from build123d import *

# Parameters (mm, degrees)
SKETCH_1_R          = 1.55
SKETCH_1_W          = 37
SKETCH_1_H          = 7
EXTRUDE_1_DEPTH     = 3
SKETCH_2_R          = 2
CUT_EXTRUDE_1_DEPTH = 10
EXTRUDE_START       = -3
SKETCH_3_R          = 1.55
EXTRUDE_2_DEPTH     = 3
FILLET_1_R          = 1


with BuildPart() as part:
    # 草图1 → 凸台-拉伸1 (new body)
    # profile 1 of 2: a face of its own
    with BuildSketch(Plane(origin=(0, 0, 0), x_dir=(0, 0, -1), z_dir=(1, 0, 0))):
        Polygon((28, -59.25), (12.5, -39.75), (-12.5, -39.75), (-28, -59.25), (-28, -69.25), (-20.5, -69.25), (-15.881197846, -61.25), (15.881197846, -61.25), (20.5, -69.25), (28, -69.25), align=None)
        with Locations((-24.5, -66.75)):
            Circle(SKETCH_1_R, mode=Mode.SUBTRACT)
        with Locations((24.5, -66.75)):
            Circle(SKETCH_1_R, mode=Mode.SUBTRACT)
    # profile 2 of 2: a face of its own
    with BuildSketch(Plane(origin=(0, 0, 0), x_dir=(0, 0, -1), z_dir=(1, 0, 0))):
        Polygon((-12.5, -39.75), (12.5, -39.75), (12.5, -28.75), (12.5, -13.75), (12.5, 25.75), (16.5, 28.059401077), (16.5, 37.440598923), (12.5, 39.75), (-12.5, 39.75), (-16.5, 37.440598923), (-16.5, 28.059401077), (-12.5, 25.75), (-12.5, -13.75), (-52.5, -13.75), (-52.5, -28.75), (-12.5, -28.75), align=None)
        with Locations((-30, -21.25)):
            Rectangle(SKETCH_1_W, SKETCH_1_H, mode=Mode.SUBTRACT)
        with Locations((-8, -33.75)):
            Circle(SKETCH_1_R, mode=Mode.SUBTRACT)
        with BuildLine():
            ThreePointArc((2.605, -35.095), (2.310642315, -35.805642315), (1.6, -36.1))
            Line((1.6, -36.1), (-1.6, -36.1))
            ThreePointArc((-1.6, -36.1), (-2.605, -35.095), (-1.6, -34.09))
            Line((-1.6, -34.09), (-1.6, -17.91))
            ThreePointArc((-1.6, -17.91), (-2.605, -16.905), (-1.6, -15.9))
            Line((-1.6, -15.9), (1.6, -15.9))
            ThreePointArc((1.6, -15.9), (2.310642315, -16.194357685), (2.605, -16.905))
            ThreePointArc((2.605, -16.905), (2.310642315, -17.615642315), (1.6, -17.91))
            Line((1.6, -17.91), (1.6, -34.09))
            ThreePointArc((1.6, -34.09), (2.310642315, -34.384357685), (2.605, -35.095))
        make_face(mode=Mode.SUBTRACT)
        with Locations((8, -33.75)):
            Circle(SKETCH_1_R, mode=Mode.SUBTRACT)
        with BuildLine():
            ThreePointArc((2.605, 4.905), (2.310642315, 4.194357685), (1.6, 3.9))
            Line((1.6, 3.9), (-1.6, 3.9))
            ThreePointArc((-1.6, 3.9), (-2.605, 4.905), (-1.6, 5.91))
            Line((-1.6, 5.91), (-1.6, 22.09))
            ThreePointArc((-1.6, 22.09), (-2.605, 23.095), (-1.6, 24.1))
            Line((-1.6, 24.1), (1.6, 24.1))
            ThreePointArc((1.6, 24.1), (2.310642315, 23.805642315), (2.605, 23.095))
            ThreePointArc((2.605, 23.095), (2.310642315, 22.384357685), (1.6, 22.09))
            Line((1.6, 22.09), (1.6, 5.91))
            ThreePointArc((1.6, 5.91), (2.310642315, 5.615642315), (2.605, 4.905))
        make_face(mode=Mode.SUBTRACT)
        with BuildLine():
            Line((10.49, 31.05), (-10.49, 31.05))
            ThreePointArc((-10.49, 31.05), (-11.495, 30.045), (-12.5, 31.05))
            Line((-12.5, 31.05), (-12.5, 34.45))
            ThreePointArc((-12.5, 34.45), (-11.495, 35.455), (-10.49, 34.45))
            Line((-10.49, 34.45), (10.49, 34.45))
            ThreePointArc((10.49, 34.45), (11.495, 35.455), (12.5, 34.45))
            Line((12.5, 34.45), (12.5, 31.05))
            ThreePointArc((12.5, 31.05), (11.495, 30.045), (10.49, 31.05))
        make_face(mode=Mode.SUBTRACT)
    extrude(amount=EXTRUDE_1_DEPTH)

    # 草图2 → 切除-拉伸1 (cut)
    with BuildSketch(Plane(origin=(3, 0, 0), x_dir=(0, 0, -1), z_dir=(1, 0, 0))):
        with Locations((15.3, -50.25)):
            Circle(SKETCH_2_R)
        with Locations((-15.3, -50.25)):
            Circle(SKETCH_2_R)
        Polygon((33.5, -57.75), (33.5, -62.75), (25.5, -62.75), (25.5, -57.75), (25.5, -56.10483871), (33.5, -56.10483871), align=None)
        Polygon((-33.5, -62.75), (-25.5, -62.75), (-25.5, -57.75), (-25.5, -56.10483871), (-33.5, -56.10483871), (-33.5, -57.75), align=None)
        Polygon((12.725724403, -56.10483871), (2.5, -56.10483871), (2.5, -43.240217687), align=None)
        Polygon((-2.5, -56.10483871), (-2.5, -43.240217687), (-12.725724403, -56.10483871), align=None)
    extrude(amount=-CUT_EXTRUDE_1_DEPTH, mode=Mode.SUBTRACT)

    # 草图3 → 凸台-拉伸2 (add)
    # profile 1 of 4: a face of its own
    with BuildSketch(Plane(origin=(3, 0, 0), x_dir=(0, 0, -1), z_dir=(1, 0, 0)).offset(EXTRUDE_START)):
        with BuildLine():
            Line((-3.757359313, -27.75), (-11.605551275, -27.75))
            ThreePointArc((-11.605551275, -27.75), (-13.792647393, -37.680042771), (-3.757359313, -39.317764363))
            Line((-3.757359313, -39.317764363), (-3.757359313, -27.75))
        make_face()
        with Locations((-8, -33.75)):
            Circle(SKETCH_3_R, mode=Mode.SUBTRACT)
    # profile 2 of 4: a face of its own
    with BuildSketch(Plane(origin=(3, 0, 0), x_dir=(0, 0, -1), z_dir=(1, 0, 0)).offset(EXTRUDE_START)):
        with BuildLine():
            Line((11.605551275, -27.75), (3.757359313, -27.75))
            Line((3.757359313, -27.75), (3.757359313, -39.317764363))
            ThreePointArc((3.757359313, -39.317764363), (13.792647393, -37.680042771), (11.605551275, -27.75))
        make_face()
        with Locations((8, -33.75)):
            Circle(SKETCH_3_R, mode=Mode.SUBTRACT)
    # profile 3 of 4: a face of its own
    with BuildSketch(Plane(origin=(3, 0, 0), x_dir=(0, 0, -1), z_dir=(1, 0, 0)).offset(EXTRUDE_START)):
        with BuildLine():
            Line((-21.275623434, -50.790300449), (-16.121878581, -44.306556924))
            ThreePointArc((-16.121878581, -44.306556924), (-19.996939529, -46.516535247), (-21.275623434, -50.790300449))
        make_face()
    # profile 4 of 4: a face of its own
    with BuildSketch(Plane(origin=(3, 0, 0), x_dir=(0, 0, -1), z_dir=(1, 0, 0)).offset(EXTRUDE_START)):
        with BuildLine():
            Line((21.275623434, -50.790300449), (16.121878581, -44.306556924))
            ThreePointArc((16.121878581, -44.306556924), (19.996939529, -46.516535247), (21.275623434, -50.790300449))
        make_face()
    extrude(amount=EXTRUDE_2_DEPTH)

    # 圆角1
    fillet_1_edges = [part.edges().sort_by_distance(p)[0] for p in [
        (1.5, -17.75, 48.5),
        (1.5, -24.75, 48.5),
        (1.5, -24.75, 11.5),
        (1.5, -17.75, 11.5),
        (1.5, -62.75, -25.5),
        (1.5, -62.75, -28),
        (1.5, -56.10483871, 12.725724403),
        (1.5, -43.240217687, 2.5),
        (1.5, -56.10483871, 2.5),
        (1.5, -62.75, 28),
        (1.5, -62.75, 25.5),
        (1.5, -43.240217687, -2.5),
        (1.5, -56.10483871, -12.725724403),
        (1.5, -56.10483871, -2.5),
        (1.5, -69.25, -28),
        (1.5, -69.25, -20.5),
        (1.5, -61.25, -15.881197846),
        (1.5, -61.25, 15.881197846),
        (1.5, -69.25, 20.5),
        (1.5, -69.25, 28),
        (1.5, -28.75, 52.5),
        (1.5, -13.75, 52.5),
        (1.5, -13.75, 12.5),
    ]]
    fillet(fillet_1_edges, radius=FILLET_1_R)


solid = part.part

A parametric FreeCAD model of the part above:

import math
import FreeCAD as App
import Part
import Sketcher

V = App.Vector
Q = App.Units.Quantity


def edges_at(feature, points):
    """Names of the edges that pass closest to the given points."""
    edges = feature.Shape.Edges
    near = lambda p: min(range(len(edges)), key=lambda i: edges[i].distToShape(Part.Vertex(*p))[0])
    return sorted({f"Edge{near(p) + 1}" for p in points})


def add_polygon(sketch, points):
    """Adds a closed chain of lines whose ends are joined by coincident constraints."""
    first, n = sketch.GeometryCount, len(points)
    for a, b in zip(points, points[1:] + points[:1]):
        sketch.addGeometry(Part.LineSegment(App.Vector(*a, 0), App.Vector(*b, 0)), False)
    for i in range(n):
        sketch.addConstraint(Sketcher.Constraint("Coincident", first + i, 2, first + (i + 1) % n, 1))

doc = App.newDocument("Part")
body = doc.addObject("PartDesign::Body", "Body")

# Sketch on YZ plane
sketch1 = doc.addObject("Sketcher::SketchObject", "Sketch")
body.addObject(sketch1)
sketch1.AttachmentSupport = (doc.YZ_Plane, [""])
sketch1.MapMode = "FlatFace"
add_polygon(sketch1, [(-59.2, -28), (-39.8, -12.5), (25.8, -12.5), (28.1, -16.5), (37.4, -16.5), (39.8, -12.5), (39.8, 12.5), (37.4, 16.5), (28.1, 16.5), (25.8, 12.5), (-13.8, 12.5), (-13.8, 52.5), (-28.8, 52.5), (-28.8, 12.5), (-39.8, 12.5), (-59.2, 28), (-69.2, 28), (-69.2, 20.5), (-61.2, 15.9), (-61.2, -15.9), (-69.2, -20.5), (-69.2, -28)])  # lines 0-21
sketch1.addGeometry(Part.Circle(V(-66.8, 24.5, 0), V(0, 0, 1), 1.6), False)  # 22
sketch1.addGeometry(Part.Circle(V(-66.8, -24.5, 0), V(0, 0, 1), 1.6), False)  # 23
sketch1.addGeometry(Part.LineSegment(V(31.1, -10.5, 0), V(31.1, 10.5, 0)), False)  # 24
sketch1.addGeometry(Part.ArcOfCircle(Part.Circle(V(31.1, 11.5, 0), V(0, 0, 1), 1), math.radians(90), math.radians(270)), False)  # 25
sketch1.addGeometry(Part.LineSegment(V(31.1, 12.5, 0), V(34.5, 12.5, 0)), False)  # 26
sketch1.addGeometry(Part.ArcOfCircle(Part.Circle(V(34.5, 11.5, 0), V(0, 0, 1), 1), math.radians(-90), math.radians(90)), False)  # 27
sketch1.addGeometry(Part.LineSegment(V(34.5, 10.5, 0), V(34.5, -10.5, 0)), False)  # 28
sketch1.addGeometry(Part.ArcOfCircle(Part.Circle(V(34.5, -11.5, 0), V(0, 0, 1), 1), math.radians(-90), math.radians(90)), False)  # 29
sketch1.addGeometry(Part.LineSegment(V(34.5, -12.5, 0), V(31.1, -12.5, 0)), False)  # 30
sketch1.addGeometry(Part.ArcOfCircle(Part.Circle(V(31.1, -11.5, 0), V(0, 0, 1), 1), math.radians(90), math.radians(270)), False)  # 31
add_polygon(sketch1, [(-24.8, 11.5), (-24.8, 48.5), (-17.8, 48.5), (-17.8, 11.5)])  # lines 32-35
sketch1.addGeometry(Part.Circle(V(-33.8, 8, 0), V(0, 0, 1), 1.6), False)  # 36
sketch1.addGeometry(Part.Circle(V(-33.8, -8, 0), V(0, 0, 1), 1.6), False)  # 37
sketch1.addGeometry(Part.ArcOfCircle(Part.Circle(V(-35.1, -1.6, 0), V(0, 0, 1), 1), math.radians(-90), math.radians(0)), False)  # 38
sketch1.addGeometry(Part.ArcOfCircle(Part.Circle(V(-35.1, -1.6, 0), V(0, 0, 1), 1), math.radians(180), math.radians(270)), False)  # 39
sketch1.addGeometry(Part.LineSegment(V(-36.1, -1.6, 0), V(-36.1, 1.6, 0)), False)  # 40
sketch1.addGeometry(Part.ArcOfCircle(Part.Circle(V(-35.1, 1.6, 0), V(0, 0, 1), 1), math.radians(0), math.radians(180)), False)  # 41
sketch1.addGeometry(Part.LineSegment(V(-34.1, 1.6, 0), V(-17.9, 1.6, 0)), False)  # 42
sketch1.addGeometry(Part.ArcOfCircle(Part.Circle(V(-16.9, 1.6, 0), V(0, 0, 1), 1), math.radians(0), math.radians(180)), False)  # 43
sketch1.addGeometry(Part.LineSegment(V(-15.9, 1.6, 0), V(-15.9, -1.6, 0)), False)  # 44
sketch1.addGeometry(Part.ArcOfCircle(Part.Circle(V(-16.9, -1.6, 0), V(0, 0, 1), 1), math.radians(-90), math.radians(0)), False)  # 45
sketch1.addGeometry(Part.ArcOfCircle(Part.Circle(V(-16.9, -1.6, 0), V(0, 0, 1), 1), math.radians(180), math.radians(270)), False)  # 46
sketch1.addGeometry(Part.LineSegment(V(-17.9, -1.6, 0), V(-34.1, -1.6, 0)), False)  # 47
sketch1.addGeometry(Part.ArcOfCircle(Part.Circle(V(4.9, -1.6, 0), V(0, 0, 1), 1), math.radians(-90), math.radians(0)), False)  # 48
sketch1.addGeometry(Part.ArcOfCircle(Part.Circle(V(4.9, -1.6, 0), V(0, 0, 1), 1), math.radians(180), math.radians(270)), False)  # 49
sketch1.addGeometry(Part.LineSegment(V(3.9, -1.6, 0), V(3.9, 1.6, 0)), False)  # 50
sketch1.addGeometry(Part.ArcOfCircle(Part.Circle(V(4.9, 1.6, 0), V(0, 0, 1), 1), math.radians(0), math.radians(180)), False)  # 51
sketch1.addGeometry(Part.LineSegment(V(5.9, 1.6, 0), V(22.1, 1.6, 0)), False)  # 52
sketch1.addGeometry(Part.ArcOfCircle(Part.Circle(V(23.1, 1.6, 0), V(0, 0, 1), 1), math.radians(0), math.radians(180)), False)  # 53
sketch1.addGeometry(Part.LineSegment(V(24.1, 1.6, 0), V(24.1, -1.6, 0)), False)  # 54
sketch1.addGeometry(Part.ArcOfCircle(Part.Circle(V(23.1, -1.6, 0), V(0, 0, 1), 1), math.radians(-90), math.radians(0)), False)  # 55
sketch1.addGeometry(Part.ArcOfCircle(Part.Circle(V(23.1, -1.6, 0), V(0, 0, 1), 1), math.radians(180), math.radians(270)), False)  # 56
sketch1.addGeometry(Part.LineSegment(V(22.1, -1.6, 0), V(5.9, -1.6, 0)), False)  # 57
sketch1.addConstraint(Sketcher.Constraint("Coincident", 24, 2, 25, 2))
sketch1.addConstraint(Sketcher.Constraint("Tangent", 25, 1, 26, 1))
sketch1.addConstraint(Sketcher.Constraint("Tangent", 26, 2, 27, 2))
sketch1.addConstraint(Sketcher.Constraint("Coincident", 27, 1, 28, 1))
sketch1.addConstraint(Sketcher.Constraint("Coincident", 28, 2, 29, 2))
sketch1.addConstraint(Sketcher.Constraint("Tangent", 29, 1, 30, 1))
sketch1.addConstraint(Sketcher.Constraint("Tangent", 30, 2, 31, 2))
sketch1.addConstraint(Sketcher.Constraint("Coincident", 31, 1, 24, 1))
sketch1.addConstraint(Sketcher.Constraint("Tangent", 38, 1, 39, 2))
sketch1.addConstraint(Sketcher.Constraint("Tangent", 39, 1, 40, 1))
sketch1.addConstraint(Sketcher.Constraint("Tangent", 40, 2, 41, 2))
sketch1.addConstraint(Sketcher.Constraint("Coincident", 41, 1, 42, 1))
sketch1.addConstraint(Sketcher.Constraint("Coincident", 42, 2, 43, 2))
sketch1.addConstraint(Sketcher.Constraint("Tangent", 43, 1, 44, 1))
sketch1.addConstraint(Sketcher.Constraint("Tangent", 44, 2, 45, 2))
sketch1.addConstraint(Sketcher.Constraint("Tangent", 45, 1, 46, 2))
sketch1.addConstraint(Sketcher.Constraint("Coincident", 46, 1, 47, 1))
sketch1.addConstraint(Sketcher.Constraint("Coincident", 47, 2, 38, 2))
sketch1.addConstraint(Sketcher.Constraint("Tangent", 48, 1, 49, 2))
sketch1.addConstraint(Sketcher.Constraint("Tangent", 49, 1, 50, 1))
sketch1.addConstraint(Sketcher.Constraint("Tangent", 50, 2, 51, 2))
sketch1.addConstraint(Sketcher.Constraint("Coincident", 51, 1, 52, 1))
sketch1.addConstraint(Sketcher.Constraint("Coincident", 52, 2, 53, 2))
sketch1.addConstraint(Sketcher.Constraint("Tangent", 53, 1, 54, 1))
sketch1.addConstraint(Sketcher.Constraint("Tangent", 54, 2, 55, 2))
sketch1.addConstraint(Sketcher.Constraint("Tangent", 55, 1, 56, 2))
sketch1.addConstraint(Sketcher.Constraint("Coincident", 56, 1, 57, 1))
sketch1.addConstraint(Sketcher.Constraint("Coincident", 57, 2, 48, 2))
sketch1.addConstraint(Sketcher.Constraint("Horizontal", 1))
sketch1.addConstraint(Sketcher.Constraint("Horizontal", 3))
sketch1.addConstraint(Sketcher.Constraint("Vertical", 5))
sketch1.addConstraint(Sketcher.Constraint("Horizontal", 7))
sketch1.addConstraint(Sketcher.Constraint("Horizontal", 9))
sketch1.addConstraint(Sketcher.Constraint("Vertical", 10))
sketch1.addConstraint(Sketcher.Constraint("Horizontal", 11))
sketch1.addConstraint(Sketcher.Constraint("Vertical", 12))
sketch1.addConstraint(Sketcher.Constraint("Horizontal", 13))
sketch1.addConstraint(Sketcher.Constraint("Horizontal", 15))
sketch1.addConstraint(Sketcher.Constraint("Vertical", 16))
sketch1.addConstraint(Sketcher.Constraint("Vertical", 18))
sketch1.addConstraint(Sketcher.Constraint("Vertical", 20))
sketch1.addConstraint(Sketcher.Constraint("Horizontal", 21))
sketch1.addConstraint(Sketcher.Constraint("Vertical", 24))
sketch1.addConstraint(Sketcher.Constraint("Horizontal", 26))
sketch1.addConstraint(Sketcher.Constraint("Vertical", 28))
sketch1.addConstraint(Sketcher.Constraint("Horizontal", 30))
sketch1.addConstraint(Sketcher.Constraint("Vertical", 32))
sketch1.addConstraint(Sketcher.Constraint("Horizontal", 33))
sketch1.addConstraint(Sketcher.Constraint("Vertical", 34))
sketch1.addConstraint(Sketcher.Constraint("Horizontal", 35))
sketch1.addConstraint(Sketcher.Constraint("Vertical", 40))
sketch1.addConstraint(Sketcher.Constraint("Horizontal", 42))
sketch1.addConstraint(Sketcher.Constraint("Vertical", 44))
sketch1.addConstraint(Sketcher.Constraint("Horizontal", 47))
sketch1.addConstraint(Sketcher.Constraint("Vertical", 50))
sketch1.addConstraint(Sketcher.Constraint("Horizontal", 52))
sketch1.addConstraint(Sketcher.Constraint("Vertical", 54))
sketch1.addConstraint(Sketcher.Constraint("Horizontal", 57))
sketch1.addConstraint(Sketcher.Constraint("Equal", 22, 23))
sketch1.addConstraint(Sketcher.Constraint("Equal", 25, 27))
sketch1.addConstraint(Sketcher.Constraint("Equal", 27, 29))
sketch1.addConstraint(Sketcher.Constraint("Equal", 29, 31))
sketch1.addConstraint(Sketcher.Constraint("Equal", 23, 36))
sketch1.addConstraint(Sketcher.Constraint("Equal", 36, 37))
sketch1.addConstraint(Sketcher.Constraint("Equal", 31, 38))
sketch1.addConstraint(Sketcher.Constraint("Equal", 38, 39))
sketch1.addConstraint(Sketcher.Constraint("Equal", 39, 41))
sketch1.addConstraint(Sketcher.Constraint("Equal", 41, 43))
sketch1.addConstraint(Sketcher.Constraint("Equal", 43, 45))
sketch1.addConstraint(Sketcher.Constraint("Equal", 45, 46))
sketch1.addConstraint(Sketcher.Constraint("Equal", 46, 48))
sketch1.addConstraint(Sketcher.Constraint("Equal", 48, 49))
sketch1.addConstraint(Sketcher.Constraint("Equal", 49, 51))
sketch1.addConstraint(Sketcher.Constraint("Equal", 51, 53))
sketch1.addConstraint(Sketcher.Constraint("Equal", 53, 55))
sketch1.addConstraint(Sketcher.Constraint("Equal", 55, 56))
sketch1.addConstraint(Sketcher.Constraint("Symmetric", 0, 2, 5, 2, -1, 1))
sketch1.addConstraint(Sketcher.Constraint("Symmetric", 4, 2, 13, 2, -1, 1))
sketch1.addConstraint(Sketcher.Constraint("Symmetric", 22, 3, 23, 3, -1))
sketch1.addConstraint(Sketcher.Constraint("Symmetric", 27, 3, 29, 3, -1))
sketch1.addConstraint(Sketcher.Constraint("Symmetric", 36, 3, 37, 3, -1))
sketch1.addConstraint(Sketcher.Constraint("Symmetric", 3, 2, 6, 2, -1))
sketch1.addConstraint(Sketcher.Constraint("Symmetric", 1, 2, 8, 2, -1))
sketch1.addConstraint(Sketcher.Constraint("Symmetric", 16, 2, 19, 2, -1))
sketch1.addConstraint(Sketcher.Constraint("Symmetric", 14, 2, 21, 2, -1))
sketch1.addConstraint(Sketcher.Constraint("Parallel", 2, 6))
sketch1.addConstraint(Sketcher.Constraint("Parallel", 4, 8))
sketch1.addConstraint(Sketcher.Constraint("Perpendicular", 8, 17))
sketch1.addConstraint(Sketcher.Constraint("Perpendicular", 6, 19))
sketch1.addConstraint(Sketcher.Constraint("Horizontal", 41, 3, 43, 3))
sketch1.addConstraint(Sketcher.Constraint("Horizontal", 39, 3, 45, 3))
sketch1.addConstraint(Sketcher.Constraint("Horizontal", 46, 3, 48, 3))
sketch1.addConstraint(Sketcher.Constraint("Horizontal", 43, 3, 51, 3))
sketch1.addConstraint(Sketcher.Constraint("Horizontal", 51, 3, 53, 3))
sketch1.addConstraint(Sketcher.Constraint("Horizontal", 49, 3, 55, 3))
sketch1.addConstraint(Sketcher.Constraint("Horizontal", 1, 2, 4, 2))
sketch1.addConstraint(Sketcher.Constraint("Horizontal", 13, 2, 25, 1))
sketch1.addConstraint(Sketcher.Constraint("Horizontal", 40, 2, 41, 1))
sketch1.addConstraint(Sketcher.Constraint("Horizontal", 44, 2, 46, 1))
sketch1.addConstraint(Sketcher.Constraint("Horizontal", 50, 2, 51, 1))
sketch1.addConstraint(Sketcher.Constraint("Horizontal", 54, 2, 56, 1))
sketch1.addConstraint(Sketcher.Constraint("Vertical", 25, 3, 31, 3))
sketch1.addConstraint(Sketcher.Constraint("Vertical", 31, 3, 24, 2))
sketch1.addConstraint(Sketcher.Constraint("Vertical", 26, 2, 27, 1))
sketch1.addConstraint(Sketcher.Constraint("Vertical", 41, 3, 38, 1))
sketch1.addConstraint(Sketcher.Constraint("Vertical", 46, 3, 45, 1))
sketch1.addConstraint(Sketcher.Constraint("Vertical", 51, 3, 48, 1))
sketch1.addConstraint(Sketcher.Constraint("Vertical", 56, 3, 55, 1))
sketch1.addConstraint(Sketcher.Constraint("Equal", 47, 52))
sketch1.addConstraint(Sketcher.Constraint("Diameter", 22, Q("3.1 mm")))
sketch1.addConstraint(Sketcher.Constraint("DistanceX", 11, 2, 11, 1, Q("15 mm")))
sketch1.addConstraint(Sketcher.Constraint("DistanceX", 13, 2, 13, 1, Q("11 mm")))
sketch1.addConstraint(Sketcher.Constraint("DistanceX", 15, 2, 15, 1, Q("10 mm")))
sketch1.addConstraint(Sketcher.Constraint("DistanceX", 33, 1, 33, 2, Q("7 mm")))
sketch1.addConstraint(Sketcher.Constraint("DistanceY", 5, 1, 5, 2, Q("25 mm")))
sketch1.addConstraint(Sketcher.Constraint("DistanceY", 10, 1, 10, 2, Q("40 mm")))
sketch1.addConstraint(Sketcher.Constraint("DistanceY", 32, 1, 32, 2, Q("37 mm")))
sketch1.addConstraint(Sketcher.Constraint("Angle", 2, Q("-60 deg")))
sketch1.addConstraint(Sketcher.Constraint("DistanceX", 1, 1, 1, 2, Q("65.5 mm")))
sketch1.addConstraint(Sketcher.Constraint("DistanceX", 26, 1, 26, 2, Q("3.4 mm")))
sketch1.addConstraint(Sketcher.Constraint("DistanceY", 16, 2, 16, 1, Q("7.5 mm")))
sketch1.addConstraint(Sketcher.Constraint("DistanceY", 40, 1, 40, 2, Q("3.2 mm")))
sketch1.addConstraint(Sketcher.Constraint("DistanceY", -1, 1, 36, 3, Q("8 mm")))
sketch1.addConstraint(Sketcher.Constraint("DistanceY", -1, 1, 14, 2, Q("28 mm")))
sketch1.addConstraint(Sketcher.Constraint("Radius", 25, Q("1.005 mm")))
sketch1.addConstraint(Sketcher.Constraint("DistanceX", 42, 1, 42, 2, Q("16.18 mm")))
sketch1.addConstraint(Sketcher.Constraint("DistanceY", -1, 1, 22, 3, Q("24.5 mm")))
sketch1.addConstraint(Sketcher.Constraint("DistanceY", 38, 3, -1, 1, Q("1.6 mm")))
sketch1.addConstraint(Sketcher.Constraint("DistanceY", 2, 2, -1, 1, Q("16.5 mm")))
sketch1.addConstraint(Sketcher.Constraint("DistanceY", -1, 1, 32, 2, Q("48.5 mm")))
sketch1.addConstraint(Sketcher.Constraint("DistanceX", 39, 1, -1, 1, Q("36.1 mm")))
sketch1.addConstraint(Sketcher.Constraint("DistanceX", -1, 1, 49, 1, Q("3.9 mm")))
sketch1.addConstraint(Sketcher.Constraint("DistanceX", 22, 3, -1, 1, Q("66.75 mm")))
sketch1.addConstraint(Sketcher.Constraint("DistanceX", -1, 1, 25, 3, Q("31.05 mm")))
sketch1.addConstraint(Sketcher.Constraint("DistanceX", 36, 3, -1, 1, Q("33.75 mm")))
sketch1.addConstraint(Sketcher.Constraint("DistanceX", 0, 2, -1, 1, Q("39.75 mm")))
sketch1.addConstraint(Sketcher.Constraint("DistanceX", 14, 2, -1, 1, Q("59.25 mm")))
sketch1.addConstraint(Sketcher.Constraint("DistanceX", 17, 2, -1, 1, Q("61.25 mm")))
sketch1.addConstraint(Sketcher.Constraint("DistanceX", 32, 2, -1, 1, Q("24.75 mm")))
pad1 = doc.addObject("PartDesign::Pad", "Pad")
body.addObject(pad1)
pad1.Profile = sketch1
pad1.Length = 3

# Sketch on YZ plane
sketch2 = doc.addObject("Sketcher::SketchObject", "Sketch001")
body.addObject(sketch2)
sketch2.AttachmentSupport = (doc.YZ_Plane, [""])
sketch2.MapMode = "FlatFace"
sketch2.AttachmentOffset = App.Placement(V(0, 0, 3), App.Rotation())
sketch2.addGeometry(Part.Circle(V(-50.2, -15.3, 0), V(0, 0, 1), 2), False)  # 0
sketch2.addGeometry(Part.Circle(V(-50.2, 15.3, 0), V(0, 0, 1), 2), False)  # 1
add_polygon(sketch2, [(-62.8, -33.5), (-56.1, -33.5), (-56.1, -25.5), (-62.8, -25.5)])  # lines 2-5
add_polygon(sketch2, [(-62.8, 33.5), (-62.8, 25.5), (-56.1, 25.5), (-56.1, 33.5)])  # lines 6-9
add_polygon(sketch2, [(-56.1, -2.5), (-56.1, -12.7), (-43.2, -2.5)])  # lines 10-12
add_polygon(sketch2, [(-56.1, 2.5), (-43.2, 2.5), (-56.1, 12.7)])  # lines 13-15
sketch2.addConstraint(Sketcher.Constraint("Horizontal", 2))
sketch2.addConstraint(Sketcher.Constraint("Vertical", 3))
sketch2.addConstraint(Sketcher.Constraint("Horizontal", 4))
sketch2.addConstraint(Sketcher.Constraint("Vertical", 5))
sketch2.addConstraint(Sketcher.Constraint("Vertical", 6))
sketch2.addConstraint(Sketcher.Constraint("Horizontal", 7))
sketch2.addConstraint(Sketcher.Constraint("Vertical", 8))
sketch2.addConstraint(Sketcher.Constraint("Horizontal", 9))
sketch2.addConstraint(Sketcher.Constraint("Vertical", 10))
sketch2.addConstraint(Sketcher.Constraint("Horizontal", 12))
sketch2.addConstraint(Sketcher.Constraint("Horizontal", 13))
sketch2.addConstraint(Sketcher.Constraint("Vertical", 15))
sketch2.addConstraint(Sketcher.Constraint("Equal", 0, 1))
sketch2.addConstraint(Sketcher.Constraint("Symmetric", 0, 3, 1, 3, -1))
sketch2.addConstraint(Sketcher.Constraint("Symmetric", 4, 2, 6, 2, -1))
sketch2.addConstraint(Sketcher.Constraint("Symmetric", 2, 2, 8, 2, -1))
sketch2.addConstraint(Sketcher.Constraint("Symmetric", 11, 2, 13, 2, -1))
sketch2.addConstraint(Sketcher.Constraint("Symmetric", 10, 2, 14, 2, -1))
sketch2.addConstraint(Sketcher.Constraint("Vertical", 8, 2, 10, 2))
sketch2.addConstraint(Sketcher.Constraint("Diameter", 0, Q("4 mm")))
sketch2.addConstraint(Sketcher.Constraint("DistanceY", 3, 1, 3, 2, Q("8 mm")))
sketch2.addConstraint(Sketcher.Constraint("DistanceY", 4, 2, 6, 2, Q("51 mm")))
sketch2.addConstraint(Sketcher.Constraint("DistanceY", 3, 2, 11, 2, Q("23 mm")))
sketch2.addConstraint(Sketcher.Constraint("DistanceY", 0, 3, -1, 1, Q("15.3 mm")))
sketch2.addConstraint(Sketcher.Constraint("DistanceX", 4, 2, 0, 3, Q("12.5 mm")))
sketch2.addConstraint(Sketcher.Constraint("DistanceX", 0, 3, -1, 1, Q("50.25 mm")))
sketch2.addConstraint(Sketcher.Constraint("DistanceX", 2, 1, 2, 2, Q("6.645161 mm")))
sketch2.addConstraint(Sketcher.Constraint("DistanceX", 12, 2, 12, 1, Q("12.864621 mm")))
sketch2.addConstraint(Sketcher.Constraint("Distance", 11, Q("16.433621 mm")))
pocket1 = doc.addObject("PartDesign::Pocket", "Pocket")
body.addObject(pocket1)
pocket1.Profile = sketch2
pocket1.Length = 10

# Sketch on YZ plane
sketch3 = doc.addObject("Sketcher::SketchObject", "Sketch002")
body.addObject(sketch3)
sketch3.AttachmentSupport = (doc.YZ_Plane, [""])
sketch3.MapMode = "FlatFace"
sketch3.addGeometry(Part.LineSegment(V(-27.8, 3.8, 0), V(-27.8, 11.6, 0)), False)
sketch3.addGeometry(Part.ArcOfCircle(Part.Circle(V(-33.8, 8, 0), V(0, 0, 1), 7), math.radians(31), math.radians(217)), False)
sketch3.addGeometry(Part.LineSegment(V(-39.3, 3.8, 0), V(-27.8, 3.8, 0)), False)
sketch3.addGeometry(Part.Circle(V(-33.8, 8, 0), V(0, 0, 1), 1.6), False)
sketch3.addGeometry(Part.LineSegment(V(-27.8, -11.6, 0), V(-27.8, -3.8, 0)), False)
sketch3.addGeometry(Part.LineSegment(V(-27.8, -3.8, 0), V(-39.3, -3.8, 0)), False)
sketch3.addGeometry(Part.ArcOfCircle(Part.Circle(V(-33.8, -8, 0), V(0, 0, 1), 7), math.radians(143), math.radians(329)), False)
sketch3.addGeometry(Part.Circle(V(-33.8, -8, 0), V(0, 0, 1), 1.6), False)
sketch3.addGeometry(Part.LineSegment(V(-50.8, 21.3, 0), V(-44.3, 16.1, 0)), False)
sketch3.addGeometry(Part.ArcOfCircle(Part.Circle(V(-50.2, 15.3, 0), V(0, 0, 1), 6), math.radians(8), math.radians(95)), False)
sketch3.addGeometry(Part.LineSegment(V(-44.3, -16.1, 0), V(-50.8, -21.3, 0)), False)
sketch3.addGeometry(Part.ArcOfCircle(Part.Circle(V(-50.2, -15.3, 0), V(0, 0, 1), 6), math.radians(-95), math.radians(-8)), False)
sketch3.addConstraint(Sketcher.Constraint("Coincident", 0, 2, 1, 1))
sketch3.addConstraint(Sketcher.Constraint("Coincident", 1, 2, 2, 1))
sketch3.addConstraint(Sketcher.Constraint("Coincident", 2, 2, 0, 1))
sketch3.addConstraint(Sketcher.Constraint("Coincident", 4, 2, 5, 1))
sketch3.addConstraint(Sketcher.Constraint("Coincident", 5, 2, 6, 1))
sketch3.addConstraint(Sketcher.Constraint("Coincident", 6, 2, 4, 1))
sketch3.addConstraint(Sketcher.Constraint("Coincident", 8, 1, 9, 2))
sketch3.addConstraint(Sketcher.Constraint("Coincident", 9, 1, 8, 2))
sketch3.addConstraint(Sketcher.Constraint("Coincident", 10, 1, 11, 2))
sketch3.addConstraint(Sketcher.Constraint("Coincident", 11, 1, 10, 2))
sketch3.addConstraint(Sketcher.Constraint("Vertical", 0))
sketch3.addConstraint(Sketcher.Constraint("Horizontal", 2))
sketch3.addConstraint(Sketcher.Constraint("Vertical", 4))
sketch3.addConstraint(Sketcher.Constraint("Horizontal", 5))
sketch3.addConstraint(Sketcher.Constraint("Coincident", 3, 3, 1, 3))
sketch3.addConstraint(Sketcher.Constraint("Coincident", 7, 3, 6, 3))
sketch3.addConstraint(Sketcher.Constraint("Equal", 1, 6))
sketch3.addConstraint(Sketcher.Constraint("Equal", 3, 7))
sketch3.addConstraint(Sketcher.Constraint("Equal", 9, 11))
sketch3.addConstraint(Sketcher.Constraint("Symmetric", 1, 3, 6, 3, -1))
sketch3.addConstraint(Sketcher.Constraint("Symmetric", 9, 3, 11, 3, -1))
sketch3.addConstraint(Sketcher.Constraint("Symmetric", 2, 2, 4, 2, -1))
sketch3.addConstraint(Sketcher.Constraint("Vertical", 9, 1, 10, 1))
sketch3.addConstraint(Sketcher.Constraint("Vertical", 8, 1, 11, 1))
sketch3.addConstraint(Sketcher.Constraint("Radius", 1, Q("7 mm")))
sketch3.addConstraint(Sketcher.Constraint("Radius", 9, Q("6 mm")))
sketch3.addConstraint(Sketcher.Constraint("Diameter", 3, Q("3.1 mm")))
sketch3.addConstraint(Sketcher.Constraint("DistanceY", -1, 1, 1, 3, Q("8 mm")))
sketch3.addConstraint(Sketcher.Constraint("DistanceX", 1, 3, 0, 2, Q("6 mm")))
sketch3.addConstraint(Sketcher.Constraint("DistanceY", -1, 1, 9, 3, Q("15.3 mm")))
sketch3.addConstraint(Sketcher.Constraint("DistanceX", 9, 3, 1, 3, Q("16.5 mm")))
sketch3.addConstraint(Sketcher.Constraint("DistanceX", 1, 3, -1, 1, Q("33.75 mm")))
sketch3.addConstraint(Sketcher.Constraint("DistanceY", 0, 1, 0, 2, Q("7.848192 mm")))
sketch3.addConstraint(Sketcher.Constraint("DistanceX", 8, 1, -1, 1, Q("50.7903 mm")))
sketch3.addConstraint(Sketcher.Constraint("DistanceY", -1, 1, 9, 1, Q("16.121879 mm")))
pad2 = doc.addObject("PartDesign::Pad", "Pad001")
body.addObject(pad2)
pad2.Profile = sketch3
pad2.Length = 3
doc.recompute()

fillet = doc.addObject("PartDesign::Fillet", "Fillet")
body.addObject(fillet)
fillet.Base = (pad2, edges_at(pad2, [
    (1.5, -17.75, 48.5),
    (1.5, -24.75, 48.5),
    (1.5, -24.75, 11.5),
    (1.5, -17.75, 11.5),
    (1.5, -62.75, -25.5),
    (1.5, -62.75, -28),
    (1.5, -56.105, 12.726),
    (1.5, -43.24, 2.5),
    (1.5, -56.105, 2.5),
    (1.5, -62.75, 28),
    (1.5, -62.75, 25.5),
    (1.5, -43.24, -2.5),
    (1.5, -56.105, -12.726),
    (1.5, -56.105, -2.5),
    (1.5, -69.25, -28),
    (1.5, -69.25, -20.5),
    (1.5, -61.25, -15.881),
    (1.5, -61.25, 15.881),
    (1.5, -69.25, 20.5),
    (1.5, -69.25, 28),
    (1.5, -28.75, 52.5),
    (1.5, -13.75, 52.5),
    (1.5, -13.75, 12.5),
]))
fillet.Radius = 1

doc.recompute()
